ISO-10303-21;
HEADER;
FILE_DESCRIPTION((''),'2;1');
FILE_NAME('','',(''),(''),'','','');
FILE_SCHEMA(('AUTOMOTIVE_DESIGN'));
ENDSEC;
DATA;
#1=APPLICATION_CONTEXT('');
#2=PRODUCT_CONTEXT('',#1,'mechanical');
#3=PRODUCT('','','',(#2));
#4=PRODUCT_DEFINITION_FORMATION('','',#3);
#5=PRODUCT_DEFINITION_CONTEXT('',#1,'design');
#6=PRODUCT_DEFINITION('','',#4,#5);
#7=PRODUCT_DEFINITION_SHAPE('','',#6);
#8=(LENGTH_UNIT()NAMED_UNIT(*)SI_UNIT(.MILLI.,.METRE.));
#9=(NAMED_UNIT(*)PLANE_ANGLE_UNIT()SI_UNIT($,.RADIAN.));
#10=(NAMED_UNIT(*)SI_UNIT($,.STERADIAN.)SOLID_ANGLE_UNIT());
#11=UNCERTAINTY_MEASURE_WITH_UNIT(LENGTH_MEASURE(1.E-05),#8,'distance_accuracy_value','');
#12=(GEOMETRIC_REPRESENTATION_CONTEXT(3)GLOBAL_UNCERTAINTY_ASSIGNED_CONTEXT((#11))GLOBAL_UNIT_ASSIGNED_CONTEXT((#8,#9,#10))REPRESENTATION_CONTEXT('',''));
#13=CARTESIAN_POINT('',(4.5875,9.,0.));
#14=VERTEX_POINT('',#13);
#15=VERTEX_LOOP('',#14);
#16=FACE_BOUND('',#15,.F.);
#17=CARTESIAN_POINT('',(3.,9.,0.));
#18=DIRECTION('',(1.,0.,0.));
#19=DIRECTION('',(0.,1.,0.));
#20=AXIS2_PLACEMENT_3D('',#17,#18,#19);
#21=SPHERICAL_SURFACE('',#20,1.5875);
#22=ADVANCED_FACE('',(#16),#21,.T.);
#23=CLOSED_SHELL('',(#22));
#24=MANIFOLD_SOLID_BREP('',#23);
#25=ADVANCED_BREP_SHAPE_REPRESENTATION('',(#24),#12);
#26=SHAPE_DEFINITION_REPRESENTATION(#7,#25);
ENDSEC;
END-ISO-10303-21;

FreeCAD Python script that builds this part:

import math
import FreeCAD as App
import Part
import Sketcher
Q = App.Units.Quantity

doc = App.newDocument("Part")
body = doc.addObject("PartDesign::Body", "Body")

# Sketch on XY plane
sketch1 = body.newObject("Sketcher::SketchObject", "Sketch")
sketch1.AttachmentSupport = (doc.getObject("XY_Plane"), [""])
sketch1.MapMode = "FlatFace"
sketch1.addGeometry(Part.LineSegment(App.Vector(1.4, 9, 0), App.Vector(4.6, 9, 0)), False)
sketch1.addGeometry(Part.ArcOfCircle(Part.Circle(App.Vector(3, 9, 0), App.Vector(0, 0, 1), 1.6), math.radians(0), math.radians(180)), False)
sketch1.addGeometry(Part.LineSegment(App.Vector(4.6, 9, 0), App.Vector(1.4, 9, 0)), True)  # axis
sketch1.addConstraint(Sketcher.Constraint("Coincident", 0, 1, 1, 2))
sketch1.addConstraint(Sketcher.Constraint("Coincident", 1, 1, 0, 2))
sketch1.addConstraint(Sketcher.Constraint("Horizontal", 0))
sketch1.addConstraint(Sketcher.Constraint("Horizontal", 2))
sketch1.addConstraint(Sketcher.Constraint("Coincident", 2, 1, 1, 1))
sketch1.addConstraint(Sketcher.Constraint("Horizontal", 1, 3, 0, 1))
sketch1.addConstraint(Sketcher.Constraint("Equal", 0, 2))
sketch1.addConstraint(Sketcher.Constraint("Radius", 1, Q("0.0625 in")))
sketch1.addConstraint(Sketcher.Constraint("DistanceX", -1, 1, 1, 3, Q("3 mm")))
sketch1.addConstraint(Sketcher.Constraint("DistanceY", -1, 1, 1, 3, Q("9 mm")))
revolution = body.newObject("PartDesign::Revolution", "Revolution")
revolution.Profile = sketch1
revolution.ReferenceAxis = (sketch1, ["Axis0"])
revolution.Angle = 360

doc.recompute()
